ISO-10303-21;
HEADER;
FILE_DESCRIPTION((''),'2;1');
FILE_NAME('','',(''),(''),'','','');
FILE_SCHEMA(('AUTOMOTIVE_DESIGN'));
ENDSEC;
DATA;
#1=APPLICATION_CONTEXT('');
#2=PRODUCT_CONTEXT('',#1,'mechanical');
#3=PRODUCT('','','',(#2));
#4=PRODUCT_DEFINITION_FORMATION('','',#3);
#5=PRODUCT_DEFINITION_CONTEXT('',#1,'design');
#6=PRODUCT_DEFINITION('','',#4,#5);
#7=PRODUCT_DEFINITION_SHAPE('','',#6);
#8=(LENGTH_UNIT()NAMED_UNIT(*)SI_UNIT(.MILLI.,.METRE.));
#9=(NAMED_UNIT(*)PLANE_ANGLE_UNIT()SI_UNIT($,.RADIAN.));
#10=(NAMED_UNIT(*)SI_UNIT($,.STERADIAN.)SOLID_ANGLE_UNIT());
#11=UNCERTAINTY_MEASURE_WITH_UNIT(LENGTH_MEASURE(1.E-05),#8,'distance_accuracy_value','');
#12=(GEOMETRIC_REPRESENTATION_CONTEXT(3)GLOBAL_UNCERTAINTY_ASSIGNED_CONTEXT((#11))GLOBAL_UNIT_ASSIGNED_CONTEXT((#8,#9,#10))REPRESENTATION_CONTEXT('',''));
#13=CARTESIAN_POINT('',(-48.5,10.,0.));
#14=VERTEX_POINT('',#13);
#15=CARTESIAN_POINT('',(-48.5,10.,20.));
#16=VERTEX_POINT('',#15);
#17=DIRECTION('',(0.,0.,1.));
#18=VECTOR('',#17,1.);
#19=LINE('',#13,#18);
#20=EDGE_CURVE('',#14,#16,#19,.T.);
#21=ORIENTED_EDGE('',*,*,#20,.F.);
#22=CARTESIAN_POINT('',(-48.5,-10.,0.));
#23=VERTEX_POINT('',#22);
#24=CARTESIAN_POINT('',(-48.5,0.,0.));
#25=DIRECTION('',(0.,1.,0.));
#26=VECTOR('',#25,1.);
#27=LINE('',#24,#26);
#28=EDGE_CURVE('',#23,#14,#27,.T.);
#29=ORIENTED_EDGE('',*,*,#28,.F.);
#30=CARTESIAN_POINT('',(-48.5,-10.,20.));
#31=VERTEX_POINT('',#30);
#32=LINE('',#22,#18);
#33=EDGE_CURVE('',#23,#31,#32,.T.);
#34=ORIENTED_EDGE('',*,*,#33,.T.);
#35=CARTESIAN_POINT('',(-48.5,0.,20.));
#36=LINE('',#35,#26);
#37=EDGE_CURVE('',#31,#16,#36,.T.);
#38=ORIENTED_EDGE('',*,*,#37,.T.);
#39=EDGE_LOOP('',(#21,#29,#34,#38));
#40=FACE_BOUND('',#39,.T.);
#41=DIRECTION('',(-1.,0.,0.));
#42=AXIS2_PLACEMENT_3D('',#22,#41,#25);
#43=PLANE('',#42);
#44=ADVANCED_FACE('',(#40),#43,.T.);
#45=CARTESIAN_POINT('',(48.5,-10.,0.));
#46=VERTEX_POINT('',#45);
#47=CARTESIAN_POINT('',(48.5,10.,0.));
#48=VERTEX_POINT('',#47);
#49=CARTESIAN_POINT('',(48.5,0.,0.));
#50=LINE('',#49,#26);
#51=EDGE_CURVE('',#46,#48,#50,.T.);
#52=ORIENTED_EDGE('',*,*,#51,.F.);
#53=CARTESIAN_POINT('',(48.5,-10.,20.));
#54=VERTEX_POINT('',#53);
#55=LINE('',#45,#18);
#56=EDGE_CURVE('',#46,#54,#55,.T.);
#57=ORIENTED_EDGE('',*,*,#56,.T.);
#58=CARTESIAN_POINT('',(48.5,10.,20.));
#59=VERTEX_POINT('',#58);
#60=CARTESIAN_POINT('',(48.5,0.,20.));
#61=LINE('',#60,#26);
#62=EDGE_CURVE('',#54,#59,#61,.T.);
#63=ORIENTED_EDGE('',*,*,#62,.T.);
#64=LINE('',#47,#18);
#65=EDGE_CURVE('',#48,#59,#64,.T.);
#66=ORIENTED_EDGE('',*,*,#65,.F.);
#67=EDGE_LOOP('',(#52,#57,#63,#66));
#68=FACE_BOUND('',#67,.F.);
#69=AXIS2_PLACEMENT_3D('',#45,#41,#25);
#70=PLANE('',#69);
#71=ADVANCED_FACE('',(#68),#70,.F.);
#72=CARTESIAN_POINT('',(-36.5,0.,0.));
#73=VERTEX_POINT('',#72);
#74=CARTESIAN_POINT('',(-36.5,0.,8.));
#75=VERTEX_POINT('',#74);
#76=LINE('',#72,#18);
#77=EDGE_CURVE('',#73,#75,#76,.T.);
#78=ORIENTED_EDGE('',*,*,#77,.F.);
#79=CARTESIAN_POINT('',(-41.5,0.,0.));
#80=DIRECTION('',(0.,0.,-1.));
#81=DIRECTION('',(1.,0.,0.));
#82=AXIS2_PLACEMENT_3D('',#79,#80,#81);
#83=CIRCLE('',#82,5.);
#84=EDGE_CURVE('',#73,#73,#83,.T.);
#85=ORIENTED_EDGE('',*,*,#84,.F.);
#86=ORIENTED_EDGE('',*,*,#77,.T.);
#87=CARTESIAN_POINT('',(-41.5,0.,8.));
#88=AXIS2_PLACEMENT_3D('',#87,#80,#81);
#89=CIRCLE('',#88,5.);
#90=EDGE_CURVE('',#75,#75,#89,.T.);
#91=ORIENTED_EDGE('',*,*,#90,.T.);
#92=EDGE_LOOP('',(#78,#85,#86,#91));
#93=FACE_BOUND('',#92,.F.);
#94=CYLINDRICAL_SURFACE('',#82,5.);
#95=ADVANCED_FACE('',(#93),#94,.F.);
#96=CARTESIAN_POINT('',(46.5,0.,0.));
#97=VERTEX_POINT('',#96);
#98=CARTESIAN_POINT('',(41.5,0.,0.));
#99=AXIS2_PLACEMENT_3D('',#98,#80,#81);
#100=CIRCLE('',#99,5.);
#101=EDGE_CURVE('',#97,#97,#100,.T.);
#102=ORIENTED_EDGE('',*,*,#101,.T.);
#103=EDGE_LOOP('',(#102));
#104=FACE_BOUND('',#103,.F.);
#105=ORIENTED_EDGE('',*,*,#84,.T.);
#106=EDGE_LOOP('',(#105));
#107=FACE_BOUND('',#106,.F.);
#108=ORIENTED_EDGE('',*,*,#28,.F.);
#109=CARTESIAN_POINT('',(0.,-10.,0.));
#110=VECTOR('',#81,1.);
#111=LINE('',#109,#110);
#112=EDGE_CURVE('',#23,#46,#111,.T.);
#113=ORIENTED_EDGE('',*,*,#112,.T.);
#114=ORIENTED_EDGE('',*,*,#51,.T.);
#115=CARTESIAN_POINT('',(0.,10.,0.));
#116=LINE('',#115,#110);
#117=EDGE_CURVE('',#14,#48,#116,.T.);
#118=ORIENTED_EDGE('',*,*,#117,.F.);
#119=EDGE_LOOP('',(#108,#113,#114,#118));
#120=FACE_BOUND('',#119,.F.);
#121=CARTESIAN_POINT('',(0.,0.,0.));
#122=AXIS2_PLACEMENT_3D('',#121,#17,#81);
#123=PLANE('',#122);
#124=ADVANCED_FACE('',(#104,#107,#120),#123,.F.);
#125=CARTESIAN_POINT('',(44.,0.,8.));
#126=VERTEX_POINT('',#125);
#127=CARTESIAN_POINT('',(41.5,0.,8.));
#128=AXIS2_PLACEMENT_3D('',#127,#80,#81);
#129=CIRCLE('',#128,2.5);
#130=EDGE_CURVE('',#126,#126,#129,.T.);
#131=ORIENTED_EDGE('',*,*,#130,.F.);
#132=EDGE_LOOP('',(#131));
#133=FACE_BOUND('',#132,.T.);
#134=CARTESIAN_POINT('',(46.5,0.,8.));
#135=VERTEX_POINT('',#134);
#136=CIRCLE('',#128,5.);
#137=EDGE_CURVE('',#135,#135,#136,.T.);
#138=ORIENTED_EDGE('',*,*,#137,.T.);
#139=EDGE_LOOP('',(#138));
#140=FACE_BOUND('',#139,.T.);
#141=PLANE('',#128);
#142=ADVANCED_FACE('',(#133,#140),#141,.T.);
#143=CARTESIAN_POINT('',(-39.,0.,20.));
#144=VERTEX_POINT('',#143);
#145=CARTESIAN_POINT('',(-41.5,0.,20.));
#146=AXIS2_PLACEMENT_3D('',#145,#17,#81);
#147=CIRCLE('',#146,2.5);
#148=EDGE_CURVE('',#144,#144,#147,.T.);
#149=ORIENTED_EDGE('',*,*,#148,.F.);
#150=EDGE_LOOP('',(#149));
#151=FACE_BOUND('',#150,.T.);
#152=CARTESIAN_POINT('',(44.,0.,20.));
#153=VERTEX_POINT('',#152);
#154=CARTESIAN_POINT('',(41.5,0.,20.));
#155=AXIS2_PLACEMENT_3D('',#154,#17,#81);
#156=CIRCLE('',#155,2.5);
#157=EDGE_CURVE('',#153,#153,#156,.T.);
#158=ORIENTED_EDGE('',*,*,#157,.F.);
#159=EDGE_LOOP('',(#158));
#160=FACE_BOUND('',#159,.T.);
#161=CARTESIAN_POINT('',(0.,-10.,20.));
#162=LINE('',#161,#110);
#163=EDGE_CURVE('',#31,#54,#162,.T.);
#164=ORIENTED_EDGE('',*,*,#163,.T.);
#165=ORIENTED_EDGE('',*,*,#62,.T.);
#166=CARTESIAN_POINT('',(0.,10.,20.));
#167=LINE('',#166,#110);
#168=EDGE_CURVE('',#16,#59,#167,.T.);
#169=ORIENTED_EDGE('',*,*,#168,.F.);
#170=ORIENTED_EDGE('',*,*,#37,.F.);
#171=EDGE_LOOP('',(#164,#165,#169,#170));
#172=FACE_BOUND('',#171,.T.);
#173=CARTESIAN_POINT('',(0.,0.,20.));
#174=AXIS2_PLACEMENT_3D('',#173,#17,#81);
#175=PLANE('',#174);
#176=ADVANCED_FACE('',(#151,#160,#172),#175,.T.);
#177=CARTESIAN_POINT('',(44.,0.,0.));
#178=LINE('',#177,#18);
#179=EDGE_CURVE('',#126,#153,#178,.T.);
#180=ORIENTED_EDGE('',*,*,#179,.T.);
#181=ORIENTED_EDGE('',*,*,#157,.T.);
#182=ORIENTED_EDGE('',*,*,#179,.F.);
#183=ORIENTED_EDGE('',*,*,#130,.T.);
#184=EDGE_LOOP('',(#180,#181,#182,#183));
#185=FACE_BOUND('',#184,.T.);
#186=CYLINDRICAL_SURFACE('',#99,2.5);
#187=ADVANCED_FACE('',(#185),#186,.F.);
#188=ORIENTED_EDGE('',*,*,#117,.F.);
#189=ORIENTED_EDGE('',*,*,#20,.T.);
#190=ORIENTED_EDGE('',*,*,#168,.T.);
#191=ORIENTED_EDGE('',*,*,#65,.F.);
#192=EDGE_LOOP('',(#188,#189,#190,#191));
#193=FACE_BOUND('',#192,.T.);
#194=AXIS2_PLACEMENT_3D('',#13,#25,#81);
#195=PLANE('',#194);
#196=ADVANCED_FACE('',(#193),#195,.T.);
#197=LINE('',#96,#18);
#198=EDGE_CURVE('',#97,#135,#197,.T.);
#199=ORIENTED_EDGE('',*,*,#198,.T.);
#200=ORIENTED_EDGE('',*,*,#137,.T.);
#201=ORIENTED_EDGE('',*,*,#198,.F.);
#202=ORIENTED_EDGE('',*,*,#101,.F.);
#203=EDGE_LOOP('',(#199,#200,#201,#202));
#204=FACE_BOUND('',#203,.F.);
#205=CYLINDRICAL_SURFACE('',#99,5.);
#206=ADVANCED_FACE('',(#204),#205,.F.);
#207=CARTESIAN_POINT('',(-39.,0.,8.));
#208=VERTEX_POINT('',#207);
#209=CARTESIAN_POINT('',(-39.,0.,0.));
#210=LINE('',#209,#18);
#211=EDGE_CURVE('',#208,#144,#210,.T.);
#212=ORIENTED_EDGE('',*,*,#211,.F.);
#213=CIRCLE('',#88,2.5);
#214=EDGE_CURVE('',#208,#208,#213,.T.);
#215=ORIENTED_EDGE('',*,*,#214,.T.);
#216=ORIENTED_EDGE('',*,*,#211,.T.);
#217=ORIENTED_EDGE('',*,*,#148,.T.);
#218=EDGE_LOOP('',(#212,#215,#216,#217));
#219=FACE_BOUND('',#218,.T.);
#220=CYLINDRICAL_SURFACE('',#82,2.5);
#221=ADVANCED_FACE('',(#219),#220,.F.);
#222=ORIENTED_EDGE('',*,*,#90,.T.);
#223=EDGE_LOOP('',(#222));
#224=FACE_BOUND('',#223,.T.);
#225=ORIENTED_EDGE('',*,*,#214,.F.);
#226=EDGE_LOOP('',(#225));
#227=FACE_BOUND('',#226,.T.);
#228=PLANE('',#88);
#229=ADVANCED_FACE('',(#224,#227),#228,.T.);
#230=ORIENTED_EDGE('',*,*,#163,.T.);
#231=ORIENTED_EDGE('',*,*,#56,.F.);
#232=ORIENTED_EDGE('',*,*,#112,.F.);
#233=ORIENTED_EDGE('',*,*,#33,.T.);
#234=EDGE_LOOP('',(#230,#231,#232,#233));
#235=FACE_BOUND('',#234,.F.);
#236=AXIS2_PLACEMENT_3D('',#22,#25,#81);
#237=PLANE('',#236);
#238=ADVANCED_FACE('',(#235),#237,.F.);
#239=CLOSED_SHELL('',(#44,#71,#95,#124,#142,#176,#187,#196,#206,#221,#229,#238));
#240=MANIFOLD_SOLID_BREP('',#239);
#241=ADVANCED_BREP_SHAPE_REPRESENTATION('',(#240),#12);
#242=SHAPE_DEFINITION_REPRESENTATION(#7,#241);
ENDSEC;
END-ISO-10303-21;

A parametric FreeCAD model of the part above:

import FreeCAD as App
import Part
import Sketcher
from FreeCAD import Vector

doc = App.newDocument("Part")
body = doc.addObject("PartDesign::Body", "Body")

# Sketch on XY plane
sketch1 = doc.addObject("Sketcher::SketchObject", "Sketch")
body.addObject(sketch1)
sketch1.AttachmentSupport = (doc.XY_Plane, [""])
sketch1.MapMode = "FlatFace"
sketch1.addGeometry([
    Part.LineSegment(Vector(-48.5, 10, 0), Vector(-48.5, -10, 0)),  # 0
    Part.LineSegment(Vector(-48.5, -10, 0), Vector(48.5, -10, 0)),  # 1
    Part.LineSegment(Vector(48.5, -10, 0), Vector(48.5, 10, 0)),  # 2
    Part.LineSegment(Vector(48.5, 10, 0), Vector(-48.5, 10, 0)),  # 3
    Part.Circle(Vector(-41.5, 0, 0), Vector(0, 0, 1), 2.5),  # 4
    Part.Circle(Vector(41.5, 0, 0), Vector(0, 0, 1), 2.5),  # 5
], False)
sketch1.addConstraint([
    Sketcher.Constraint("Coincident", 0, 2, 1, 1),
    Sketcher.Constraint("Coincident", 1, 2, 2, 1),
    Sketcher.Constraint("Coincident", 2, 2, 3, 1),
    Sketcher.Constraint("Coincident", 3, 2, 0, 1),
    Sketcher.Constraint("Vertical", 0),
    Sketcher.Constraint("Horizontal", 1),
    Sketcher.Constraint("Vertical", 2),
    Sketcher.Constraint("Horizontal", 3),
    Sketcher.Constraint("Equal", 4, 5),
    Sketcher.Constraint("Symmetric", 4, 3, 5, 3, -1, 1),
    Sketcher.Constraint("Symmetric", 0, 2, 2, 2, -1, 1),
    Sketcher.Constraint("PointOnObject", 4, 3, -1),
    Sketcher.Constraint("Diameter", 4, 5.0),
    Sketcher.Constraint("DistanceX", 1, 1, 1, 2, 97.0),
    Sketcher.Constraint("DistanceY", 0, 2, 0, 1, 20.0),
    Sketcher.Constraint("DistanceX", 4, 3, 5, 3, 83.0),
])
pad1 = doc.addObject("PartDesign::Pad", "Pad")
body.addObject(pad1)
pad1.Profile = sketch1
pad1.Length = 20

# Sketch on XY plane
sketch2 = doc.addObject("Sketcher::SketchObject", "Sketch001")
body.addObject(sketch2)
sketch2.AttachmentSupport = (doc.XY_Plane, [""])
sketch2.MapMode = "FlatFace"
sketch2.addGeometry([
    Part.Circle(Vector(-42, 0, 0), Vector(0, 0, 1), 5),
    Part.Circle(Vector(42, 0, 0), Vector(0, 0, 1), 5),
], False)
sketch2.addConstraint([
    Sketcher.Constraint("Equal", 0, 1),
    Sketcher.Constraint("Symmetric", 0, 3, 1, 3, -1, 1),
    Sketcher.Constraint("PointOnObject", 0, 3, -1),
    Sketcher.Constraint("Diameter", 0, 10.0),
    Sketcher.Constraint("DistanceX", 0, 3, 1, 3, 83.0),
])
pocket1 = doc.addObject("PartDesign::Pocket", "Pocket")
body.addObject(pocket1)
pocket1.Profile = sketch2
pocket1.Length = 8
pocket1.Reversed = True

doc.recompute()
